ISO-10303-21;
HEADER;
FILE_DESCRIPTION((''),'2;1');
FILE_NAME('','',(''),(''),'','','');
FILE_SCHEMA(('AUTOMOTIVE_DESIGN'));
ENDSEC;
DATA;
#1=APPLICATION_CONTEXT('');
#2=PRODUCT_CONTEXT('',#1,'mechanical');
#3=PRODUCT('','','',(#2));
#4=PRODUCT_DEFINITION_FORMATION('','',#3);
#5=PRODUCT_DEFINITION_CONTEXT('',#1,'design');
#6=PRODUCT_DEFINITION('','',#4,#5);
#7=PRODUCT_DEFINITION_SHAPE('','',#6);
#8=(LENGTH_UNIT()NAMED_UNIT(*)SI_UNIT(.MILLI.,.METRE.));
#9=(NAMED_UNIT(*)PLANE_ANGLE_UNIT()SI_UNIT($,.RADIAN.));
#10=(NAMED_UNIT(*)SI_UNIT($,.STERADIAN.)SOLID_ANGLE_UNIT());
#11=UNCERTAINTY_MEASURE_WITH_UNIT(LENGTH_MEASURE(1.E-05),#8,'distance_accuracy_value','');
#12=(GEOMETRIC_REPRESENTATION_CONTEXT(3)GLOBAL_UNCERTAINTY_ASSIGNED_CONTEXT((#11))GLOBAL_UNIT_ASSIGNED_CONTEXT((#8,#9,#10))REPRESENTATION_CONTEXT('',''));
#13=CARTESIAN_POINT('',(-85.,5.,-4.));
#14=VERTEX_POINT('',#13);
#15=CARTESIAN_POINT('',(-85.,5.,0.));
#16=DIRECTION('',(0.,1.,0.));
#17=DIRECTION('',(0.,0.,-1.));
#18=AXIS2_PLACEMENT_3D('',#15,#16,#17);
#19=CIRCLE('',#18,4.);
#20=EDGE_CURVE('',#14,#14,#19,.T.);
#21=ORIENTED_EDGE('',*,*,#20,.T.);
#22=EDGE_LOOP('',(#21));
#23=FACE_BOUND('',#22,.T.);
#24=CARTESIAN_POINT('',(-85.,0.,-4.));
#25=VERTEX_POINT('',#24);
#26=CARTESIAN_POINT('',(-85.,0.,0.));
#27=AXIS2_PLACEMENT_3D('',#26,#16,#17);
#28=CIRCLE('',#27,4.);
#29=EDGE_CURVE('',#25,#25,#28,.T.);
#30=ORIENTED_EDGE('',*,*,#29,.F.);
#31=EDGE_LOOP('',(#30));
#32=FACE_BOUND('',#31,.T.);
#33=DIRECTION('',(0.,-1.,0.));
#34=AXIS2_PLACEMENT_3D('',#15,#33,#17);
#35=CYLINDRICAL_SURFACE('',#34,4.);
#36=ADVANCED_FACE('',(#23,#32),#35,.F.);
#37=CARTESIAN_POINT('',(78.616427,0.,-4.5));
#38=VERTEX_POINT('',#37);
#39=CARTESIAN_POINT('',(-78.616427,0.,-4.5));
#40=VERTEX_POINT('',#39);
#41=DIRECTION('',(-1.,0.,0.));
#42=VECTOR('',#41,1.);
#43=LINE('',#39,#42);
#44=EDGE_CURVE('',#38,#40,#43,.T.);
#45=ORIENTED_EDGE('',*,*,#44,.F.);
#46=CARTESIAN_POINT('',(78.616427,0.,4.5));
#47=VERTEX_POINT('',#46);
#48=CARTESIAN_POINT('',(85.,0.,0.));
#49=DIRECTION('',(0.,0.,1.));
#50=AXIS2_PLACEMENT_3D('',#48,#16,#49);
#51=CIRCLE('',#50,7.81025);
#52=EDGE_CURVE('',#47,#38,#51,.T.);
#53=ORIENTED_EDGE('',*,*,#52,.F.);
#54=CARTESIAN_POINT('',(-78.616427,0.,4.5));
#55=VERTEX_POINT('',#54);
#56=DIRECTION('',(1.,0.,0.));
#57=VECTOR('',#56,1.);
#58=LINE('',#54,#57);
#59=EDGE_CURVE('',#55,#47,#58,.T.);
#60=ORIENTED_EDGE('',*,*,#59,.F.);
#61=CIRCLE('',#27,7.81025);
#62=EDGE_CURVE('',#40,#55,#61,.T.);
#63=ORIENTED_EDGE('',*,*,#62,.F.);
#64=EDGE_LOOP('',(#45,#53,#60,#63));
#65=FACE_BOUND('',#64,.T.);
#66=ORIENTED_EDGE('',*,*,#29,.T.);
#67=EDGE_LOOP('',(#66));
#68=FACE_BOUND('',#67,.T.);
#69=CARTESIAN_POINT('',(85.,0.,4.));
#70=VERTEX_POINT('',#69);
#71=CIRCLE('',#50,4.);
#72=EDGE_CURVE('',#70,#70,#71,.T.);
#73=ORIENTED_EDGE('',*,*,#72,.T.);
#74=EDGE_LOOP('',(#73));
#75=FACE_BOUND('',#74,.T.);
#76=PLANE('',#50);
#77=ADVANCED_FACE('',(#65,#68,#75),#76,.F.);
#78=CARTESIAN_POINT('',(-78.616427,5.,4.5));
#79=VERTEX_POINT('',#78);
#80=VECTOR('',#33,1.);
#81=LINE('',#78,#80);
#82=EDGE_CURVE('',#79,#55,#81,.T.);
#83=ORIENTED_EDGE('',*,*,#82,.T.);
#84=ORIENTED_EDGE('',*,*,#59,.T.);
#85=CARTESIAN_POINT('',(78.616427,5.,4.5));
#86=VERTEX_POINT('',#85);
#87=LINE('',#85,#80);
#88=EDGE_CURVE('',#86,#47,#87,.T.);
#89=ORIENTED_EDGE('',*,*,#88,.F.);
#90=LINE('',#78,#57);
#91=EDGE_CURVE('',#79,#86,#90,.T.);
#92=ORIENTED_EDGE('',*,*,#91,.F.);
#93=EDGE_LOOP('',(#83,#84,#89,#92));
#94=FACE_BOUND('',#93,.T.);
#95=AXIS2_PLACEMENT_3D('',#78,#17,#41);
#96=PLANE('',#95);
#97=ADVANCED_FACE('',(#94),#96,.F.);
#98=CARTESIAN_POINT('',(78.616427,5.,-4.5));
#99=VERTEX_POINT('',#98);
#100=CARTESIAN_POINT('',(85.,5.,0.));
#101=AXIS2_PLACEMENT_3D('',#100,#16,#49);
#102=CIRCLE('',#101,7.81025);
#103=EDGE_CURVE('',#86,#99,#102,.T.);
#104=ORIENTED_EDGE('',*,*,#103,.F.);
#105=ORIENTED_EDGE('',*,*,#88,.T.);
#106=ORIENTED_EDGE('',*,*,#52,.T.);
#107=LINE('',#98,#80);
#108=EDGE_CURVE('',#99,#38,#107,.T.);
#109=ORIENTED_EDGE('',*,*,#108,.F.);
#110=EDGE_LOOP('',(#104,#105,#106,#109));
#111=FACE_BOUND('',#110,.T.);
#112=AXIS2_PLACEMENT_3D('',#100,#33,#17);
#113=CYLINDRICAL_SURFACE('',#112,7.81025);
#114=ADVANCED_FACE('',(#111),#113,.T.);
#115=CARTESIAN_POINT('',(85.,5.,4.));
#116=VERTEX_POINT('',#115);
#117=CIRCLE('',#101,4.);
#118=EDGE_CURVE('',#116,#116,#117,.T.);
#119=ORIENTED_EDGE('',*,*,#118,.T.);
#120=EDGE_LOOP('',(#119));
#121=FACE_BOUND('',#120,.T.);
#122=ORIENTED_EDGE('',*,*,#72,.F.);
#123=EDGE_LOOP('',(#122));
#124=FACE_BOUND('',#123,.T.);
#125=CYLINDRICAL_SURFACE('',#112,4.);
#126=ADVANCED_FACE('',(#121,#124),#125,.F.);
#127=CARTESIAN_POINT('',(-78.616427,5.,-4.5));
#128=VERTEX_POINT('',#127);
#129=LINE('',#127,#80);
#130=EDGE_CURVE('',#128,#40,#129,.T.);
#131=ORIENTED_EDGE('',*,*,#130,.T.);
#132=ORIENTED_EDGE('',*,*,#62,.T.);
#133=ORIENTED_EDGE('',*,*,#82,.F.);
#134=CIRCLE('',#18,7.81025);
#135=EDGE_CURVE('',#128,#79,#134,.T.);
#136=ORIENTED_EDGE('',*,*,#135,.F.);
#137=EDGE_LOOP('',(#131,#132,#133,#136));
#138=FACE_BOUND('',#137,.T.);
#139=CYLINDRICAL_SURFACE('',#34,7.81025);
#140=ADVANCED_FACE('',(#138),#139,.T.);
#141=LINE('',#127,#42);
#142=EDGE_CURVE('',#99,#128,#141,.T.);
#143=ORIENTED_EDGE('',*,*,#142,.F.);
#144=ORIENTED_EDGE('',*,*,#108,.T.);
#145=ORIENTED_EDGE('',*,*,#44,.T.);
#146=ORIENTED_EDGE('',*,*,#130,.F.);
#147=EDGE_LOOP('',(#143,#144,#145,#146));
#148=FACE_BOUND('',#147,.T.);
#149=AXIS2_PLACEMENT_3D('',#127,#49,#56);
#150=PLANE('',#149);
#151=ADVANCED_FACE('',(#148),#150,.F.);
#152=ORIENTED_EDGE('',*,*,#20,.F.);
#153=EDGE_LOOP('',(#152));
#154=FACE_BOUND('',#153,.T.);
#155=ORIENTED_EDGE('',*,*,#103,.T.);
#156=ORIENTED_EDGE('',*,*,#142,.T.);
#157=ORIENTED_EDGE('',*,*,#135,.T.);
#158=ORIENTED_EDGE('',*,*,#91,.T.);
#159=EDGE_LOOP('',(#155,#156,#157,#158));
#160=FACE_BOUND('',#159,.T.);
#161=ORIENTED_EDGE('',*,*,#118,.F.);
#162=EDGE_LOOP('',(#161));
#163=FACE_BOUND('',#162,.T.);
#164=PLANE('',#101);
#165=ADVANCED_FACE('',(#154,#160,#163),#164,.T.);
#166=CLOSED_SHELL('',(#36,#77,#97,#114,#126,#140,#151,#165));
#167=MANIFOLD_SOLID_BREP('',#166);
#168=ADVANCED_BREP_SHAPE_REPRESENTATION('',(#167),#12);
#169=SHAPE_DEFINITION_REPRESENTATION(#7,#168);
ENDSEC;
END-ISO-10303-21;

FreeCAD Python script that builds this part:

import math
import FreeCAD as App
import Part
import Sketcher
from FreeCAD import Vector
Q = App.Units.Quantity

doc = App.newDocument("Part")
body = doc.addObject("PartDesign::Body", "Body")

sketch1 = body.newObject("Sketcher::SketchObject", "Sketch")
sketch1.AttachmentSupport = (doc.getObject("XZ_Plane"), [""])
sketch1.MapMode = "FlatFace"
sketch1.addGeometry(Part.LineSegment(Vector(-78.6, 4.5, 0), Vector(78.6, 4.5, 0)), False)
sketch1.addGeometry(Part.ArcOfCircle(Part.Circle(Vector(85, 0, 0), Vector(0, 0, 1), 7.8), math.radians(-145), math.radians(145)), False)
sketch1.addGeometry(Part.LineSegment(Vector(78.6, -4.5, 0), Vector(-78.6, -4.5, 0)), False)
sketch1.addGeometry(Part.ArcOfCircle(Part.Circle(Vector(-85, 0, 0), Vector(0, 0, 1), 7.8), math.radians(35), math.radians(325)), False)
sketch1.addGeometry(Part.Circle(Vector(-85, 0, 0), Vector(0, 0, 1), 4), False)
sketch1.addGeometry(Part.Circle(Vector(85, 0, 0), Vector(0, 0, 1), 4), False)
sketch1.addConstraint(Sketcher.Constraint("Coincident", 0, 2, 1, 2))
sketch1.addConstraint(Sketcher.Constraint("Coincident", 1, 1, 2, 1))
sketch1.addConstraint(Sketcher.Constraint("Coincident", 2, 2, 3, 2))
sketch1.addConstraint(Sketcher.Constraint("Coincident", 3, 1, 0, 1))
sketch1.addConstraint(Sketcher.Constraint("Horizontal", 0))
sketch1.addConstraint(Sketcher.Constraint("Horizontal", 2))
sketch1.addConstraint(Sketcher.Constraint("Coincident", 4, 3, 3, 3))
sketch1.addConstraint(Sketcher.Constraint("Coincident", 5, 3, 1, 3))
sketch1.addConstraint(Sketcher.Constraint("Equal", 1, 3))
sketch1.addConstraint(Sketcher.Constraint("Equal", 4, 5))
sketch1.addConstraint(Sketcher.Constraint("Symmetric", 1, 3, 3, 3, -1, 1))
sketch1.addConstraint(Sketcher.Constraint("Symmetric", 0, 2, 1, 1, -1))
sketch1.addConstraint(Sketcher.Constraint("Diameter", 4, Q("8 mm")))
sketch1.addConstraint(Sketcher.Constraint("DistanceX", -1, 1, 1, 3, Q("85 mm")))
sketch1.addConstraint(Sketcher.Constraint("DistanceY", 1, 1, 0, 2, Q("9 mm")))
sketch1.addConstraint(Sketcher.Constraint("Radius", 1, Q("7.81025 mm")))
pad1 = body.newObject("PartDesign::Pad", "Pad")
pad1.Profile = sketch1
pad1.Length = 5
pad1.Reversed = True

doc.recompute()
